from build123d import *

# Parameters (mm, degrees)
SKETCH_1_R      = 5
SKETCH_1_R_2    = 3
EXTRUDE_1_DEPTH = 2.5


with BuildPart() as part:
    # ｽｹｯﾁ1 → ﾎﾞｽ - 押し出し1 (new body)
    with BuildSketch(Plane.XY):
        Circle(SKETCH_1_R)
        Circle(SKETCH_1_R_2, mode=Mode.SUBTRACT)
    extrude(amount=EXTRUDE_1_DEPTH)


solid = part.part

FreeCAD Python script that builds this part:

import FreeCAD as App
import Part
import Sketcher
from FreeCAD import Vector

doc = App.newDocument("Part")
body = doc.addObject("PartDesign::Body", "Body")

# Sketch on XY plane
sketch1 = body.newObject("Sketcher::SketchObject", "Sketch")
sketch1.AttachmentSupport = (doc.getObject("XY_Plane"), [""])
sketch1.MapMode = "FlatFace"
sketch1.addGeometry(Part.Circle(Vector(0, 0, 0), Vector(0, 0, 1), 5), False)
sketch1.addGeometry(Part.Circle(Vector(0, 0, 0), Vector(0, 0, 1), 3), False)
sketch1.addConstraint(Sketcher.Constraint("Coincident", 0, 3, -1, 1))
sketch1.addConstraint(Sketcher.Constraint("Coincident", 1, 3, -1, 1))
sketch1.addConstraint(Sketcher.Constraint("Diameter", 0, 10.0))
sketch1.addConstraint(Sketcher.Constraint("Diameter", 1, 6.0))
pad1 = body.newObject("PartDesign::Pad", "Pad")
pad1.Profile = sketch1
pad1.Length = 2.5

doc.recompute()
